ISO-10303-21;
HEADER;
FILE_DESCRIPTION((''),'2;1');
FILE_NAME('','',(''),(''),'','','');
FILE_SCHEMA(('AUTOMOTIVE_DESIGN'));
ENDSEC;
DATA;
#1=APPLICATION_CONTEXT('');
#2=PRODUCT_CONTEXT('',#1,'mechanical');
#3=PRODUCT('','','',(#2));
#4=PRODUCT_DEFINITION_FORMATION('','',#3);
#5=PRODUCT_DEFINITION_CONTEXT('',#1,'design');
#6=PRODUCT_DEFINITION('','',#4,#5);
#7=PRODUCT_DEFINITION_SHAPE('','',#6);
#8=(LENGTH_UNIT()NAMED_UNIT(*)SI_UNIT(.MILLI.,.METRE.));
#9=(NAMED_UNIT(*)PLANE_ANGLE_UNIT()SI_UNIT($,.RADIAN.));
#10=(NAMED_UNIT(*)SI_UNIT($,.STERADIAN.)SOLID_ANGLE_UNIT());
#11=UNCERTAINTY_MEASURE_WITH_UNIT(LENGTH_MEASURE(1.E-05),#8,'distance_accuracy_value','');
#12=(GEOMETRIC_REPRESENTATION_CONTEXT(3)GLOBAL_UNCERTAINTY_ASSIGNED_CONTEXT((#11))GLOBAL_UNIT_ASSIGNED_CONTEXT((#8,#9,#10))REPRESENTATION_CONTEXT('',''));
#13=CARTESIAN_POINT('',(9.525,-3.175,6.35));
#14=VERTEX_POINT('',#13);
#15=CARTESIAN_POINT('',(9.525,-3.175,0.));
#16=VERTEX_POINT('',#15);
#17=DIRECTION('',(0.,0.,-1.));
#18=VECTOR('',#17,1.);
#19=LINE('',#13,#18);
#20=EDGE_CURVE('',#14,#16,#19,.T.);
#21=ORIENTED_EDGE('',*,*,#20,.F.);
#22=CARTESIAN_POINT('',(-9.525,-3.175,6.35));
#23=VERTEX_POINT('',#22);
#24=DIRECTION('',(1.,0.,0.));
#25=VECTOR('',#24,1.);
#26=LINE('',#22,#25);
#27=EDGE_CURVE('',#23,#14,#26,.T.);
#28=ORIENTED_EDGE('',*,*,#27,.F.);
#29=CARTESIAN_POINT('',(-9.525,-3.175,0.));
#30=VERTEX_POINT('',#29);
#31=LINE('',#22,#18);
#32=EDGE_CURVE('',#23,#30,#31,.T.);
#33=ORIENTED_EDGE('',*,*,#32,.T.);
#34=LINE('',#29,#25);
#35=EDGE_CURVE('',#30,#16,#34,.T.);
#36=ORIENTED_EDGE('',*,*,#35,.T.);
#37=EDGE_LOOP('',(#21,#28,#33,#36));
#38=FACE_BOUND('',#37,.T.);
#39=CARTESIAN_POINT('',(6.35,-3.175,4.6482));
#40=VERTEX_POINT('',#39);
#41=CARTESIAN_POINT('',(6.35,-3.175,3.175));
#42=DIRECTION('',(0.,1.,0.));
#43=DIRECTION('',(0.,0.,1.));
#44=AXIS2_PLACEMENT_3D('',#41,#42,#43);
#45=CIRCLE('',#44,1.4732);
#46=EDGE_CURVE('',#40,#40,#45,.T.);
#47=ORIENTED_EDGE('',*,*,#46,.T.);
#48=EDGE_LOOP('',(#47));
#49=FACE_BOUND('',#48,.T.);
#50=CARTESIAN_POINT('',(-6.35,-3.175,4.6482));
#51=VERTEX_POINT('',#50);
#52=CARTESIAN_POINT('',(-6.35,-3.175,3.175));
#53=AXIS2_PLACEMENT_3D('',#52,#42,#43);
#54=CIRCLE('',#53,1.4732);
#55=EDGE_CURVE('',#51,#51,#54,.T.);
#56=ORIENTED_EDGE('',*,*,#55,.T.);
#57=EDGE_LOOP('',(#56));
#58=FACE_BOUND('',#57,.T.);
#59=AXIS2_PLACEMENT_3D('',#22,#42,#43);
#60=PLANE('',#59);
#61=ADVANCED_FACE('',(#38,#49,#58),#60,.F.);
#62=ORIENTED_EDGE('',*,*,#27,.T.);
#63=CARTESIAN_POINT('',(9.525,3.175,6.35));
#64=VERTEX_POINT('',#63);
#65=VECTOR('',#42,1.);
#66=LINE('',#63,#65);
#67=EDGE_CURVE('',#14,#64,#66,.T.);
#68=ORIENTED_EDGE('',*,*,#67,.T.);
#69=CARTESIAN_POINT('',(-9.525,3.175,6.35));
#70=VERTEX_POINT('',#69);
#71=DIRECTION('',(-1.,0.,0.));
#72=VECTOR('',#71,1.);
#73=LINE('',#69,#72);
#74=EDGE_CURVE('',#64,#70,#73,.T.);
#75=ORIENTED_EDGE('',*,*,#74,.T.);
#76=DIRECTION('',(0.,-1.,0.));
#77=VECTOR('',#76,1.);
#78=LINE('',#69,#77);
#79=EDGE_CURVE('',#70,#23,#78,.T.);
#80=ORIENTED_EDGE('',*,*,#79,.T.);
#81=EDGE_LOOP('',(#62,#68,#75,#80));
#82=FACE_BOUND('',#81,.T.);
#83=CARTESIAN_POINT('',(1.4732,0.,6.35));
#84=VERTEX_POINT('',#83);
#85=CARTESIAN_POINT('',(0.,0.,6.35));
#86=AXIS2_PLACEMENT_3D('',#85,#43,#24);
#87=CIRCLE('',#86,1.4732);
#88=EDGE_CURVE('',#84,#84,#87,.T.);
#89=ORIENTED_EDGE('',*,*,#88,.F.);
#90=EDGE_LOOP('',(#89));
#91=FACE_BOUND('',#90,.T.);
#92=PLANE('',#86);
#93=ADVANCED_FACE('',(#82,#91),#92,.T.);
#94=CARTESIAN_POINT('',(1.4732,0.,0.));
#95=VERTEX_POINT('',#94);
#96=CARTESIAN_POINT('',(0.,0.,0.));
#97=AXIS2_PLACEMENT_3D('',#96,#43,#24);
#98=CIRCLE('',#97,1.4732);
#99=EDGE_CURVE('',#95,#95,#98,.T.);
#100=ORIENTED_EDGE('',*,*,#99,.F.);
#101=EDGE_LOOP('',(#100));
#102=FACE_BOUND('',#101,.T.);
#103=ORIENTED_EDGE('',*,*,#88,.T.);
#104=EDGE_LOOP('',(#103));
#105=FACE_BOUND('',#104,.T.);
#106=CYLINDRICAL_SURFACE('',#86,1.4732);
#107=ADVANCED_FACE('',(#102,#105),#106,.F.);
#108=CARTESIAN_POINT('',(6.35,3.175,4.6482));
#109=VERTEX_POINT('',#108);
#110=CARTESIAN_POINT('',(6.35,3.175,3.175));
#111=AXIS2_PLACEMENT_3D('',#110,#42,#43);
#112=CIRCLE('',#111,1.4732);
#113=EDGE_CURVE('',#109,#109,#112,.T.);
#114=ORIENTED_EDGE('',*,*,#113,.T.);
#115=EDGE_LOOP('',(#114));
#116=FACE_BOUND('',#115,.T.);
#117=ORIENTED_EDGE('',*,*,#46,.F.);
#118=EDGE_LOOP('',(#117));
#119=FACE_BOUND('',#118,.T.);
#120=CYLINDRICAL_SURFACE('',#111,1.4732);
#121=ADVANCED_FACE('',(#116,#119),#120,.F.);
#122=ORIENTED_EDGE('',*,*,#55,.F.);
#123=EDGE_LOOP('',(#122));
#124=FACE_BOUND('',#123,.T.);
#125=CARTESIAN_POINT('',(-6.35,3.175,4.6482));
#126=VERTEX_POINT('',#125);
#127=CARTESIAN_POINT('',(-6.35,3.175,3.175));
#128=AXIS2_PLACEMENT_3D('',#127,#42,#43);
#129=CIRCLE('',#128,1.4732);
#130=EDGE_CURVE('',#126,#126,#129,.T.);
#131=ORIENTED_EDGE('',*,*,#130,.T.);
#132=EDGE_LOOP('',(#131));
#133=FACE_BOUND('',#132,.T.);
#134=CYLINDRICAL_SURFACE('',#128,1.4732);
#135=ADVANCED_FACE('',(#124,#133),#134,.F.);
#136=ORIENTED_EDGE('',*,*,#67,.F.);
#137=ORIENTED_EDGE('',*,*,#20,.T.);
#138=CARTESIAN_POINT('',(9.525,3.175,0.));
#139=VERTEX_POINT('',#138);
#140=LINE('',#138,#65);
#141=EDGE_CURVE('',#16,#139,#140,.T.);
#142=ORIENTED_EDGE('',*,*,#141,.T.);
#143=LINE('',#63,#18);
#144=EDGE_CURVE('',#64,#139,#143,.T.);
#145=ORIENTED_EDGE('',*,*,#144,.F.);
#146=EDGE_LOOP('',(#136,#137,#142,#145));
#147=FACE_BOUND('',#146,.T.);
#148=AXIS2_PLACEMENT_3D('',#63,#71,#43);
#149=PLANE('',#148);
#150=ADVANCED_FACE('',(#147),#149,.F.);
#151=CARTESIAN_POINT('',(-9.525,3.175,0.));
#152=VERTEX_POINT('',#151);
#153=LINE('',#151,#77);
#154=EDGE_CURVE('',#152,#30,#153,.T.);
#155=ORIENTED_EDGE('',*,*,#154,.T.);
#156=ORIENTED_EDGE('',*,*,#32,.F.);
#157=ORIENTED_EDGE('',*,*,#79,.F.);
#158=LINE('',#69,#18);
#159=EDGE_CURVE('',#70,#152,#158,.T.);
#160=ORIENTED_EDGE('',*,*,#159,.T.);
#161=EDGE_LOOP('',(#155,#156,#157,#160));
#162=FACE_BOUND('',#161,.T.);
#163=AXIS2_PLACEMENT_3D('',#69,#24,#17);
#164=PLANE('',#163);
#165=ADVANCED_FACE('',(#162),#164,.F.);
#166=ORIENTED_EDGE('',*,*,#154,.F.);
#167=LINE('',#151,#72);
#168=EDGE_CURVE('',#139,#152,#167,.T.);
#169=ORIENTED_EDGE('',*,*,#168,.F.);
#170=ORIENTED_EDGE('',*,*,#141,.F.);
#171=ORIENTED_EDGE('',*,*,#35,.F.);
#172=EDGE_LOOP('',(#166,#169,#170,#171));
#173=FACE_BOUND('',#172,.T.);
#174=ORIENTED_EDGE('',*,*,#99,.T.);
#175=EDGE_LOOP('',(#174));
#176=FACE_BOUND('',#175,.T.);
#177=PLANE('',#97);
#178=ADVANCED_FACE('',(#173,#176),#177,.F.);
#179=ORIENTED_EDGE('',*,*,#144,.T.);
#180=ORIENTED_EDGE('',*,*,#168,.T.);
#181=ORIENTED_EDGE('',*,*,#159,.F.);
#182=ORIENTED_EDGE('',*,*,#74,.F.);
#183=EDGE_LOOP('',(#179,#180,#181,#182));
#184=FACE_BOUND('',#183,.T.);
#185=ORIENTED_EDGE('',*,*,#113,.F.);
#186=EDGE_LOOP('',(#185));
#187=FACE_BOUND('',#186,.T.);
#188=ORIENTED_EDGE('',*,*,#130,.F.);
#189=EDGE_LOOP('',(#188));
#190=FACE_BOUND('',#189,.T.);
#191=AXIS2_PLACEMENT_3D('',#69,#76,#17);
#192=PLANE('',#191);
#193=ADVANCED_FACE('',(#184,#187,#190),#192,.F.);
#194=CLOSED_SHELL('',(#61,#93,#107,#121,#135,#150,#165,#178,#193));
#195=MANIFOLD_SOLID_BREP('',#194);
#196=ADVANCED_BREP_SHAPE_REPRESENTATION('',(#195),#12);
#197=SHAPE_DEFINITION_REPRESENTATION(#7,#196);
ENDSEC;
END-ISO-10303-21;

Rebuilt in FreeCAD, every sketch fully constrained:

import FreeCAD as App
import Part
import Sketcher
Q = App.Units.Quantity

doc = App.newDocument("Part")
body = doc.addObject("PartDesign::Body", "Body")

sketch1 = body.newObject("Sketcher::SketchObject", "Sketch")
sketch1.AttachmentSupport = (doc.getObject("XY_Plane"), [""])
sketch1.MapMode = "FlatFace"
sketch1.addGeometry([
    Part.LineSegment(App.Vector(-10, 3, 0), App.Vector(-10, -3, 0)),
    Part.LineSegment(App.Vector(-10, -3, 0), App.Vector(10, -3, 0)),
    Part.LineSegment(App.Vector(10, -3, 0), App.Vector(10, 3, 0)),
    Part.LineSegment(App.Vector(10, 3, 0), App.Vector(-10, 3, 0)),
], False)
sketch1.addConstraint([
    Sketcher.Constraint("Coincident", 0, 2, 1, 1),
    Sketcher.Constraint("Coincident", 1, 2, 2, 1),
    Sketcher.Constraint("Coincident", 2, 2, 3, 1),
    Sketcher.Constraint("Coincident", 3, 2, 0, 1),
    Sketcher.Constraint("Vertical", 0),
    Sketcher.Constraint("Horizontal", 1),
    Sketcher.Constraint("Vertical", 2),
    Sketcher.Constraint("Horizontal", 3),
    Sketcher.Constraint("Symmetric", 0, 2, 2, 2, -1, 1),
    Sketcher.Constraint("DistanceX", 1, 1, 1, 2, Q("0.75 in")),
    Sketcher.Constraint("DistanceY", 0, 2, 0, 1, Q("0.25 in")),
])
pad1 = body.newObject("PartDesign::Pad", "Pad")
pad1.Profile = sketch1
pad1.Length = Q("0.25 in")

sketch2 = body.newObject("Sketcher::SketchObject", "Sketch001")
sketch2.AttachmentSupport = (doc.getObject("XZ_Plane"), [""])
sketch2.MapMode = "FlatFace"
sketch2.AttachmentOffset = App.Placement(App.Vector(0, 0, -0.125 * 25.4), App.Rotation())
sketch2.addGeometry([
    Part.Circle(App.Vector(-6.3, 3.2, 0), App.Vector(0, 0, 1), 1.5),
    Part.Circle(App.Vector(6.3, 3.2, 0), App.Vector(0, 0, 1), 1.5),
], False)
sketch2.addConstraint([
    Sketcher.Constraint("Equal", 0, 1),
    Sketcher.Constraint("Symmetric", 0, 3, 1, 3, -2),
    Sketcher.Constraint("Diameter", 0, Q("0.116 in")),
    Sketcher.Constraint("DistanceX", 0, 3, 1, 3, Q("0.5 in")),
    Sketcher.Constraint("DistanceY", -1, 1, 0, 3, Q("0.125 in")),
])
doc.recompute()
hole = body.newObject("PartDesign::Hole", "Hole")
hole.Profile = sketch2
hole.ThreadType = "None"
hole.Diameter = Q("0.116 in")
hole.DepthType = "ThroughAll"
hole.Reversed = True

sketch3 = body.newObject("Sketcher::SketchObject", "Sketch002")
sketch3.AttachmentSupport = (doc.getObject("XY_Plane"), [""])
sketch3.MapMode = "FlatFace"
sketch3.AttachmentOffset = App.Placement(App.Vector(0, 0, 0.25 * 25.4), App.Rotation())
sketch3.addGeometry(Part.Circle(App.Vector(0, 0, 0), App.Vector(0, 0, 1), 1.5), False)
sketch3.addConstraint([
    Sketcher.Constraint("Coincident", 0, 3, -1, 1),
    Sketcher.Constraint("Diameter", 0, Q("0.116 in")),
])
doc.recompute()
hole2 = body.newObject("PartDesign::Hole", "Hole001")
hole2.Profile = sketch3
hole2.ThreadType = "None"
hole2.Diameter = Q("0.116 in")
hole2.DepthType = "ThroughAll"

doc.recompute()
